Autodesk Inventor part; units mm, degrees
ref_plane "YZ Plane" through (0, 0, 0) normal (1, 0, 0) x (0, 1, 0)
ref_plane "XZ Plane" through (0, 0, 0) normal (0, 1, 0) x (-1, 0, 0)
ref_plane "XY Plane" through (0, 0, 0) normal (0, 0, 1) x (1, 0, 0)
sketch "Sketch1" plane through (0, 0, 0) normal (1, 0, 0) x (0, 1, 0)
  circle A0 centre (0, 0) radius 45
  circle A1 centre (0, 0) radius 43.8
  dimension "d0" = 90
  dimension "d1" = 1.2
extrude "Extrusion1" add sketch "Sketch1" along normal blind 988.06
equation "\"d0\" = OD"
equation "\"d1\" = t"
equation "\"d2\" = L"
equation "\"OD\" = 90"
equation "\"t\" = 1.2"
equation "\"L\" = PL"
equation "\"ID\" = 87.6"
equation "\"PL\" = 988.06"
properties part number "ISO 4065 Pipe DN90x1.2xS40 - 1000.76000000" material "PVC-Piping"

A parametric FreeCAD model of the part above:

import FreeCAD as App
import Part
import Sketcher

V = App.Vector

doc = App.newDocument("Part")
body = doc.addObject("PartDesign::Body", "Body")

# Sketch on YZ plane
sketch1 = body.newObject("Sketcher::SketchObject", "Sketch")
sketch1.AttachmentSupport = (doc.getObject("YZ_Plane"), [""])
sketch1.MapMode = "FlatFace"
sketch1.addGeometry([
    Part.Circle(V(0, 0, 0), V(0, 0, 1), 45),
    Part.Circle(V(0, 0, 0), V(0, 0, 1), 44),
], False)
sketch1.addConstraint([
    Sketcher.Constraint("Coincident", 0, 3, -1, 1),
    Sketcher.Constraint("Coincident", 1, 3, -1, 1),
    Sketcher.Constraint("Diameter", 0, 90.0),
    Sketcher.Constraint("Diameter", 1, 87.6),
])
pad1 = body.newObject("PartDesign::Pad", "Pad")
pad1.Profile = sketch1
pad1.Length = 988.06

doc.recompute()
